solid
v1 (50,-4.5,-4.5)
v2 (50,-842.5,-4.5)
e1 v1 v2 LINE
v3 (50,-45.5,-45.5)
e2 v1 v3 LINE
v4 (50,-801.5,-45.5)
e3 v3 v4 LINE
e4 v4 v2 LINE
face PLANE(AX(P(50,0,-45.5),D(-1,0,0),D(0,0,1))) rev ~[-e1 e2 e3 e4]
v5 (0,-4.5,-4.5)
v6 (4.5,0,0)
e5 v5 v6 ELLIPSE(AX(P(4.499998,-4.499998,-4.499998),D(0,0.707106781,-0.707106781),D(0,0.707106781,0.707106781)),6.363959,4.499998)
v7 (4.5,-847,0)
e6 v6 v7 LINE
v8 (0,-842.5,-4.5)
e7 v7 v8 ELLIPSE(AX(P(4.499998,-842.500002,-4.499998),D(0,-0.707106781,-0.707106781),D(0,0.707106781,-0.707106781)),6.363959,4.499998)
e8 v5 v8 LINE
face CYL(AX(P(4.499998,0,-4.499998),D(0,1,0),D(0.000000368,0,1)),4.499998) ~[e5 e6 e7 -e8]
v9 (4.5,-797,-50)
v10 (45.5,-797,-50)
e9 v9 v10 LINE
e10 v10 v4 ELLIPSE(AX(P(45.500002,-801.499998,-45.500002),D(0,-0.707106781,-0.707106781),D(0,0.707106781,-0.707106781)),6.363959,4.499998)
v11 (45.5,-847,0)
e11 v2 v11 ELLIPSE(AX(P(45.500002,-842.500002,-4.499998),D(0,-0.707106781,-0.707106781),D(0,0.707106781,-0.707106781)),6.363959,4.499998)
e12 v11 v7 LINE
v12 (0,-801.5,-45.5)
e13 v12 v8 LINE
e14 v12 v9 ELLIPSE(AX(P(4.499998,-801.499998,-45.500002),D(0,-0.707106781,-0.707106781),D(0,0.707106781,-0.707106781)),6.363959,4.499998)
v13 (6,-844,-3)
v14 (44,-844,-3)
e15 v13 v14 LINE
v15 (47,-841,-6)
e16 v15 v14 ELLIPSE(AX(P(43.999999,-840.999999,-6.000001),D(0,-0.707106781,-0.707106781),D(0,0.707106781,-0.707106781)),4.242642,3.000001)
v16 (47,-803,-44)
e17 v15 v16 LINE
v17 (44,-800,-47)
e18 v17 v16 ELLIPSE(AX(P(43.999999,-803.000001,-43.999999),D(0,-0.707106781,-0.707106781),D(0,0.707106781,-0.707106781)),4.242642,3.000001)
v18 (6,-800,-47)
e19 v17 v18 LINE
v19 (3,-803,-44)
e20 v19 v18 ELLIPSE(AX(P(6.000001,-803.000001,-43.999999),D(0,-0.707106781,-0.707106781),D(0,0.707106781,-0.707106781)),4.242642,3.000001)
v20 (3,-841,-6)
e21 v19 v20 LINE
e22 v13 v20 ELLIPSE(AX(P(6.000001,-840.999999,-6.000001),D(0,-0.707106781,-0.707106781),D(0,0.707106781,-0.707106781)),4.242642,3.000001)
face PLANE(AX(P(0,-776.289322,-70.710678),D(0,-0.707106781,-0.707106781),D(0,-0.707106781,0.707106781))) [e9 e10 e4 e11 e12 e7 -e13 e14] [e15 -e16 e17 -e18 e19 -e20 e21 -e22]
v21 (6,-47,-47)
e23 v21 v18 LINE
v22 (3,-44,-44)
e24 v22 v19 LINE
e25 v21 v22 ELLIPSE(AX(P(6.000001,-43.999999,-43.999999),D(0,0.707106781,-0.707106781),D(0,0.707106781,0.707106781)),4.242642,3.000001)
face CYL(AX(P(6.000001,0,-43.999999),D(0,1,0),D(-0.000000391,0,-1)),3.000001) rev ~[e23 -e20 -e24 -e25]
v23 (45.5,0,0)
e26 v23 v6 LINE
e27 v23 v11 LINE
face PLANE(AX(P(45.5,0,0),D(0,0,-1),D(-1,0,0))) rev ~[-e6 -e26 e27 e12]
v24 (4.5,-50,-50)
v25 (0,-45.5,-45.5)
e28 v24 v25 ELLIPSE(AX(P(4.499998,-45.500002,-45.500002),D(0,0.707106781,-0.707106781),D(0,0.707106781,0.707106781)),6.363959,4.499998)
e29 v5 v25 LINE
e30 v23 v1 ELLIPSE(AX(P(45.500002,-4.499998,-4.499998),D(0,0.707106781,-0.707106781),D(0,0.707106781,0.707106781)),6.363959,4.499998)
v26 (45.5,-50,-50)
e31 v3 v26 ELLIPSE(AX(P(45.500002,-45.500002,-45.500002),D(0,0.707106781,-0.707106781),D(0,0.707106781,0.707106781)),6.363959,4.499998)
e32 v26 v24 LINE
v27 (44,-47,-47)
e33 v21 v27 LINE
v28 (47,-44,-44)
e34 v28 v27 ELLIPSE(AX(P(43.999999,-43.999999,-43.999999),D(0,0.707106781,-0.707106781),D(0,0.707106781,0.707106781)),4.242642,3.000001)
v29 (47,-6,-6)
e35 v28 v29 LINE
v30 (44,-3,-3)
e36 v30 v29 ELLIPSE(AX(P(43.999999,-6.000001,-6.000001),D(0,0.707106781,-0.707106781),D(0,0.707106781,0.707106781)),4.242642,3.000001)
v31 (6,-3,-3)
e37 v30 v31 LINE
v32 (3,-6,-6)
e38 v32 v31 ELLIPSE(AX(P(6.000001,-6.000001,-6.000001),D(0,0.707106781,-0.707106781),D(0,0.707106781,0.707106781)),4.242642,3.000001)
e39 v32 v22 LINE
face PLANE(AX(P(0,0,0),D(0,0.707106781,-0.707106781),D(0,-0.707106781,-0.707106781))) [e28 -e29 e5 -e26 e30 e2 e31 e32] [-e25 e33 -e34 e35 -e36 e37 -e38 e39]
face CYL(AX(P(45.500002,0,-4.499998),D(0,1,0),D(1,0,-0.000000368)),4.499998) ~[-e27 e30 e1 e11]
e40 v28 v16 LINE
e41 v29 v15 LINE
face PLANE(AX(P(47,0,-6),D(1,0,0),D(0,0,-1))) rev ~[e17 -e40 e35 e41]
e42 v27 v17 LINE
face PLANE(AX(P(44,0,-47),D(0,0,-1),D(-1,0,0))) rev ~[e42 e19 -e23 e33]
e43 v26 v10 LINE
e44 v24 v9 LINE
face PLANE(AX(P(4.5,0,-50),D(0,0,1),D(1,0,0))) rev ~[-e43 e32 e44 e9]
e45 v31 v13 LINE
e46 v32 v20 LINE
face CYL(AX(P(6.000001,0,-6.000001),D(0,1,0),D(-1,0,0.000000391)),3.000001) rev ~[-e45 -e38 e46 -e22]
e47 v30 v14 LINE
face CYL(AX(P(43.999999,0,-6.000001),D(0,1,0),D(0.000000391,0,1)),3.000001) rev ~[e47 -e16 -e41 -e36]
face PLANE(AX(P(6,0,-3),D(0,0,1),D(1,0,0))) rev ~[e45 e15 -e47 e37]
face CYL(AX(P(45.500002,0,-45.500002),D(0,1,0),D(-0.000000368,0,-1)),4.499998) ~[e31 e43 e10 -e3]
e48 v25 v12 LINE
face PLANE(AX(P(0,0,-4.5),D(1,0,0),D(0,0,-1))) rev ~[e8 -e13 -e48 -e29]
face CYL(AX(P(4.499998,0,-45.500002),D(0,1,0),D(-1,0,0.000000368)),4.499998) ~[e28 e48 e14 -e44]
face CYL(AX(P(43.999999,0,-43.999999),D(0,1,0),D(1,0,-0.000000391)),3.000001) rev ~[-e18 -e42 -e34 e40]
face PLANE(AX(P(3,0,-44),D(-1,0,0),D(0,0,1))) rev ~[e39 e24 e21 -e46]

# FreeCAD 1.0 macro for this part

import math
import FreeCAD as App
import Part
import Sketcher
Q = App.Units.Quantity


def add_polygon(sketch, points):
    """Adds a closed chain of lines whose ends are joined by coincident constraints."""
    first, n = sketch.GeometryCount, len(points)
    for a, b in zip(points, points[1:] + points[:1]):
        sketch.addGeometry(Part.LineSegment(App.Vector(*a, 0), App.Vector(*b, 0)), False)
    for i in range(n):
        sketch.addConstraint(Sketcher.Constraint("Coincident", first + i, 2, first + (i + 1) % n, 1))

doc = App.newDocument("Part")
params = doc.addObject("Spreadsheet::Sheet", "Params")
for row, (alias, value) in enumerate([
    ("sketch1_radius", "3.000001 mm"),
    ("sketch1_radius2", "4.499998 mm"),
    ("sketch1_width", "41 mm"),
    ("sketch1_width2", "38 mm"),
    ("pad1_length", "847 mm"),
    ("sketch2_width", "100 mm"),
    ("sketch2_length", "100 mm"),
], start=1):
    params.set(f"A{row}", alias)
    params.set(f"B{row}", "=" + value)
    params.setAlias(f"B{row}", alias)

body = doc.addObject("PartDesign::Body", "Body")

# Sketch on XZ plane
sketch1 = body.newObject("Sketcher::SketchObject", "Sketch")
sketch1.AttachmentSupport = (doc.getObject("XZ_Plane"), [""])
sketch1.MapMode = "FlatFace"
sketch1.addGeometry([
    Part.LineSegment(App.Vector(45.5, 0, 0), App.Vector(4.5, 0, 0)),  # 0
    Part.ArcOfCircle(Part.Circle(App.Vector(4.499998, -4.499998, 0), App.Vector(0, 0, 1), 4.499998), math.radians(89.999979), math.radians(180.000021)),  # 1
    Part.LineSegment(App.Vector(0, -4.5, 0), App.Vector(0, -45.5, 0)),  # 2
    Part.ArcOfCircle(Part.Circle(App.Vector(4.499998, -45.500002, 0), App.Vector(0, 0, 1), 4.499998), math.radians(179.999979), math.radians(270.000021)),  # 3
    Part.LineSegment(App.Vector(4.5, -50, 0), App.Vector(45.5, -50, 0)),  # 4
    Part.ArcOfCircle(Part.Circle(App.Vector(45.500002, -45.500002, 0), App.Vector(0, 0, 1), 4.499998), math.radians(-90.000021), math.radians(0.000021)),  # 5
    Part.LineSegment(App.Vector(50, -45.5, 0), App.Vector(50, -4.5, 0)),  # 6
    Part.ArcOfCircle(Part.Circle(App.Vector(45.500002, -4.499998, 0), App.Vector(0, 0, 1), 4.499998), math.radians(-0.000021), math.radians(90.000021)),  # 7
    Part.LineSegment(App.Vector(3, -44, 0), App.Vector(3, -6, 0)),  # 8
    Part.ArcOfCircle(Part.Circle(App.Vector(6.000001, -6.000001, 0), App.Vector(0, 0, 1), 3.000001), math.radians(90.000022), math.radians(179.999978)),  # 9
    Part.LineSegment(App.Vector(6, -3, 0), App.Vector(44, -3, 0)),  # 10
    Part.ArcOfCircle(Part.Circle(App.Vector(43.999999, -6.000001, 0), App.Vector(0, 0, 1), 3.000001), math.radians(0.000022), math.radians(89.999978)),  # 11
    Part.LineSegment(App.Vector(47, -6, 0), App.Vector(47, -44, 0)),  # 12
    Part.ArcOfCircle(Part.Circle(App.Vector(43.999999, -43.999999, 0), App.Vector(0, 0, 1), 3.000001), math.radians(-89.999978), math.radians(-0.000022)),  # 13
    Part.LineSegment(App.Vector(44, -47, 0), App.Vector(6, -47, 0)),  # 14
    Part.ArcOfCircle(Part.Circle(App.Vector(6.000001, -43.999999, 0), App.Vector(0, 0, 1), 3.000001), math.radians(-179.999978), math.radians(-90.000022)),  # 15
], False)
sketch1.addConstraint([
    Sketcher.Constraint("Tangent", 0, 2, 1, 1),
    Sketcher.Constraint("Tangent", 1, 2, 2, 1),
    Sketcher.Constraint("Tangent", 2, 2, 3, 1),
    Sketcher.Constraint("Tangent", 3, 2, 4, 1),
    Sketcher.Constraint("Tangent", 4, 2, 5, 1),
    Sketcher.Constraint("Tangent", 5, 2, 6, 1),
    Sketcher.Constraint("Tangent", 6, 2, 7, 1),
    Sketcher.Constraint("Tangent", 7, 2, 0, 1),
    Sketcher.Constraint("Tangent", 8, 2, 9, 2),
    Sketcher.Constraint("Tangent", 9, 1, 10, 1),
    Sketcher.Constraint("Tangent", 10, 2, 11, 2),
    Sketcher.Constraint("Tangent", 11, 1, 12, 1),
    Sketcher.Constraint("Tangent", 12, 2, 13, 2),
    Sketcher.Constraint("Tangent", 13, 1, 14, 1),
    Sketcher.Constraint("Tangent", 14, 2, 15, 2),
    Sketcher.Constraint("Tangent", 15, 1, 8, 1),
    Sketcher.Constraint("Horizontal", 0),
    Sketcher.Constraint("Vertical", 2),
    Sketcher.Constraint("Horizontal", 4),
    Sketcher.Constraint("Vertical", 6),
    Sketcher.Constraint("Vertical", 8),
    Sketcher.Constraint("Horizontal", 10),
    Sketcher.Constraint("Vertical", 12),
    Sketcher.Constraint("Horizontal", 14),
    Sketcher.Constraint("Equal", 1, 3),
    Sketcher.Constraint("Equal", 3, 5),
    Sketcher.Constraint("Equal", 5, 7),
    Sketcher.Constraint("Equal", 9, 11),
    Sketcher.Constraint("Equal", 11, 13),
    Sketcher.Constraint("Equal", 13, 15),
    Sketcher.Constraint("PointOnObject", 0, 2, -1),
    Sketcher.Constraint("PointOnObject", 1, 2, -2),
    Sketcher.Constraint("Equal", 4, 2),
    Sketcher.Constraint("Equal", 14, 8),
    Sketcher.Constraint("Radius", 9, Q("3.000001 mm")),
    Sketcher.Constraint("Radius", 1, Q("4.499998 mm")),
    Sketcher.Constraint("DistanceX", 0, 2, 0, 1, Q("41 mm")),
    Sketcher.Constraint("DistanceX", 10, 1, 10, 2, Q("38 mm")),
    Sketcher.Constraint("DistanceX", -1, 1, 9, 3, Q("6.000001 mm")),
    Sketcher.Constraint("DistanceY", 9, 3, -1, 1, Q("6.000001 mm")),
])
sketch1.setExpression("Constraints[34]", "Params.sketch1_radius")
sketch1.setExpression("Constraints[35]", "Params.sketch1_radius2")
sketch1.setExpression("Constraints[36]", "Params.sketch1_width")
sketch1.setExpression("Constraints[37]", "Params.sketch1_width2")
pad1 = body.newObject("PartDesign::Pad", "Pad")
pad1.Profile = sketch1
pad1.setExpression("Length", "Params.pad1_length")

# Sketch on YZ plane
sketch2 = body.newObject("Sketcher::SketchObject", "Sketch001")
sketch2.AttachmentSupport = (doc.getObject("YZ_Plane"), [""])
sketch2.MapMode = "FlatFace"
add_polygon(sketch2, [(29.289322, 0), (0, 0), (-70.710678, -70.710678), (29.289322, -70.710678)])  # lines 0-3
add_polygon(sketch2, [(-776.289322, -70.710678), (-847, 0), (-876.289322, 0), (-876.289322, -70.710678)])  # lines 4-7
sketch2.addConstraint([
    Sketcher.Constraint("Horizontal", 0),
    Sketcher.Constraint("Horizontal", 2),
    Sketcher.Constraint("Vertical", 3),
    Sketcher.Constraint("Horizontal", 5),
    Sketcher.Constraint("Vertical", 6),
    Sketcher.Constraint("Horizontal", 7),
    Sketcher.Constraint("Coincident", 0, 2, -1, 1),
    Sketcher.Constraint("PointOnObject", 4, 2, -1),
    Sketcher.Constraint("Perpendicular", 1, 4),
    Sketcher.Constraint("Horizontal", 2, 2, 6, 2),
    Sketcher.Constraint("Equal", 0, 5),
    Sketcher.Constraint("Equal", 2, 7),
    Sketcher.Constraint("DistanceX", 2, 1, 2, 2, Q("100 mm")),
    Sketcher.Constraint("Distance", 1, Q("100 mm")),
    Sketcher.Constraint("DistanceX", 4, 2, -1, 1, Q("847 mm")),
])
sketch2.setExpression("Constraints[20]", "Params.sketch2_width")
sketch2.setExpression("Constraints[21]", "Params.sketch2_length")
pocket1 = body.newObject("PartDesign::Pocket", "Pocket")
pocket1.Profile = sketch2
pocket1.Type = "ThroughAll"
pocket1.Reversed = True

doc.recompute()
